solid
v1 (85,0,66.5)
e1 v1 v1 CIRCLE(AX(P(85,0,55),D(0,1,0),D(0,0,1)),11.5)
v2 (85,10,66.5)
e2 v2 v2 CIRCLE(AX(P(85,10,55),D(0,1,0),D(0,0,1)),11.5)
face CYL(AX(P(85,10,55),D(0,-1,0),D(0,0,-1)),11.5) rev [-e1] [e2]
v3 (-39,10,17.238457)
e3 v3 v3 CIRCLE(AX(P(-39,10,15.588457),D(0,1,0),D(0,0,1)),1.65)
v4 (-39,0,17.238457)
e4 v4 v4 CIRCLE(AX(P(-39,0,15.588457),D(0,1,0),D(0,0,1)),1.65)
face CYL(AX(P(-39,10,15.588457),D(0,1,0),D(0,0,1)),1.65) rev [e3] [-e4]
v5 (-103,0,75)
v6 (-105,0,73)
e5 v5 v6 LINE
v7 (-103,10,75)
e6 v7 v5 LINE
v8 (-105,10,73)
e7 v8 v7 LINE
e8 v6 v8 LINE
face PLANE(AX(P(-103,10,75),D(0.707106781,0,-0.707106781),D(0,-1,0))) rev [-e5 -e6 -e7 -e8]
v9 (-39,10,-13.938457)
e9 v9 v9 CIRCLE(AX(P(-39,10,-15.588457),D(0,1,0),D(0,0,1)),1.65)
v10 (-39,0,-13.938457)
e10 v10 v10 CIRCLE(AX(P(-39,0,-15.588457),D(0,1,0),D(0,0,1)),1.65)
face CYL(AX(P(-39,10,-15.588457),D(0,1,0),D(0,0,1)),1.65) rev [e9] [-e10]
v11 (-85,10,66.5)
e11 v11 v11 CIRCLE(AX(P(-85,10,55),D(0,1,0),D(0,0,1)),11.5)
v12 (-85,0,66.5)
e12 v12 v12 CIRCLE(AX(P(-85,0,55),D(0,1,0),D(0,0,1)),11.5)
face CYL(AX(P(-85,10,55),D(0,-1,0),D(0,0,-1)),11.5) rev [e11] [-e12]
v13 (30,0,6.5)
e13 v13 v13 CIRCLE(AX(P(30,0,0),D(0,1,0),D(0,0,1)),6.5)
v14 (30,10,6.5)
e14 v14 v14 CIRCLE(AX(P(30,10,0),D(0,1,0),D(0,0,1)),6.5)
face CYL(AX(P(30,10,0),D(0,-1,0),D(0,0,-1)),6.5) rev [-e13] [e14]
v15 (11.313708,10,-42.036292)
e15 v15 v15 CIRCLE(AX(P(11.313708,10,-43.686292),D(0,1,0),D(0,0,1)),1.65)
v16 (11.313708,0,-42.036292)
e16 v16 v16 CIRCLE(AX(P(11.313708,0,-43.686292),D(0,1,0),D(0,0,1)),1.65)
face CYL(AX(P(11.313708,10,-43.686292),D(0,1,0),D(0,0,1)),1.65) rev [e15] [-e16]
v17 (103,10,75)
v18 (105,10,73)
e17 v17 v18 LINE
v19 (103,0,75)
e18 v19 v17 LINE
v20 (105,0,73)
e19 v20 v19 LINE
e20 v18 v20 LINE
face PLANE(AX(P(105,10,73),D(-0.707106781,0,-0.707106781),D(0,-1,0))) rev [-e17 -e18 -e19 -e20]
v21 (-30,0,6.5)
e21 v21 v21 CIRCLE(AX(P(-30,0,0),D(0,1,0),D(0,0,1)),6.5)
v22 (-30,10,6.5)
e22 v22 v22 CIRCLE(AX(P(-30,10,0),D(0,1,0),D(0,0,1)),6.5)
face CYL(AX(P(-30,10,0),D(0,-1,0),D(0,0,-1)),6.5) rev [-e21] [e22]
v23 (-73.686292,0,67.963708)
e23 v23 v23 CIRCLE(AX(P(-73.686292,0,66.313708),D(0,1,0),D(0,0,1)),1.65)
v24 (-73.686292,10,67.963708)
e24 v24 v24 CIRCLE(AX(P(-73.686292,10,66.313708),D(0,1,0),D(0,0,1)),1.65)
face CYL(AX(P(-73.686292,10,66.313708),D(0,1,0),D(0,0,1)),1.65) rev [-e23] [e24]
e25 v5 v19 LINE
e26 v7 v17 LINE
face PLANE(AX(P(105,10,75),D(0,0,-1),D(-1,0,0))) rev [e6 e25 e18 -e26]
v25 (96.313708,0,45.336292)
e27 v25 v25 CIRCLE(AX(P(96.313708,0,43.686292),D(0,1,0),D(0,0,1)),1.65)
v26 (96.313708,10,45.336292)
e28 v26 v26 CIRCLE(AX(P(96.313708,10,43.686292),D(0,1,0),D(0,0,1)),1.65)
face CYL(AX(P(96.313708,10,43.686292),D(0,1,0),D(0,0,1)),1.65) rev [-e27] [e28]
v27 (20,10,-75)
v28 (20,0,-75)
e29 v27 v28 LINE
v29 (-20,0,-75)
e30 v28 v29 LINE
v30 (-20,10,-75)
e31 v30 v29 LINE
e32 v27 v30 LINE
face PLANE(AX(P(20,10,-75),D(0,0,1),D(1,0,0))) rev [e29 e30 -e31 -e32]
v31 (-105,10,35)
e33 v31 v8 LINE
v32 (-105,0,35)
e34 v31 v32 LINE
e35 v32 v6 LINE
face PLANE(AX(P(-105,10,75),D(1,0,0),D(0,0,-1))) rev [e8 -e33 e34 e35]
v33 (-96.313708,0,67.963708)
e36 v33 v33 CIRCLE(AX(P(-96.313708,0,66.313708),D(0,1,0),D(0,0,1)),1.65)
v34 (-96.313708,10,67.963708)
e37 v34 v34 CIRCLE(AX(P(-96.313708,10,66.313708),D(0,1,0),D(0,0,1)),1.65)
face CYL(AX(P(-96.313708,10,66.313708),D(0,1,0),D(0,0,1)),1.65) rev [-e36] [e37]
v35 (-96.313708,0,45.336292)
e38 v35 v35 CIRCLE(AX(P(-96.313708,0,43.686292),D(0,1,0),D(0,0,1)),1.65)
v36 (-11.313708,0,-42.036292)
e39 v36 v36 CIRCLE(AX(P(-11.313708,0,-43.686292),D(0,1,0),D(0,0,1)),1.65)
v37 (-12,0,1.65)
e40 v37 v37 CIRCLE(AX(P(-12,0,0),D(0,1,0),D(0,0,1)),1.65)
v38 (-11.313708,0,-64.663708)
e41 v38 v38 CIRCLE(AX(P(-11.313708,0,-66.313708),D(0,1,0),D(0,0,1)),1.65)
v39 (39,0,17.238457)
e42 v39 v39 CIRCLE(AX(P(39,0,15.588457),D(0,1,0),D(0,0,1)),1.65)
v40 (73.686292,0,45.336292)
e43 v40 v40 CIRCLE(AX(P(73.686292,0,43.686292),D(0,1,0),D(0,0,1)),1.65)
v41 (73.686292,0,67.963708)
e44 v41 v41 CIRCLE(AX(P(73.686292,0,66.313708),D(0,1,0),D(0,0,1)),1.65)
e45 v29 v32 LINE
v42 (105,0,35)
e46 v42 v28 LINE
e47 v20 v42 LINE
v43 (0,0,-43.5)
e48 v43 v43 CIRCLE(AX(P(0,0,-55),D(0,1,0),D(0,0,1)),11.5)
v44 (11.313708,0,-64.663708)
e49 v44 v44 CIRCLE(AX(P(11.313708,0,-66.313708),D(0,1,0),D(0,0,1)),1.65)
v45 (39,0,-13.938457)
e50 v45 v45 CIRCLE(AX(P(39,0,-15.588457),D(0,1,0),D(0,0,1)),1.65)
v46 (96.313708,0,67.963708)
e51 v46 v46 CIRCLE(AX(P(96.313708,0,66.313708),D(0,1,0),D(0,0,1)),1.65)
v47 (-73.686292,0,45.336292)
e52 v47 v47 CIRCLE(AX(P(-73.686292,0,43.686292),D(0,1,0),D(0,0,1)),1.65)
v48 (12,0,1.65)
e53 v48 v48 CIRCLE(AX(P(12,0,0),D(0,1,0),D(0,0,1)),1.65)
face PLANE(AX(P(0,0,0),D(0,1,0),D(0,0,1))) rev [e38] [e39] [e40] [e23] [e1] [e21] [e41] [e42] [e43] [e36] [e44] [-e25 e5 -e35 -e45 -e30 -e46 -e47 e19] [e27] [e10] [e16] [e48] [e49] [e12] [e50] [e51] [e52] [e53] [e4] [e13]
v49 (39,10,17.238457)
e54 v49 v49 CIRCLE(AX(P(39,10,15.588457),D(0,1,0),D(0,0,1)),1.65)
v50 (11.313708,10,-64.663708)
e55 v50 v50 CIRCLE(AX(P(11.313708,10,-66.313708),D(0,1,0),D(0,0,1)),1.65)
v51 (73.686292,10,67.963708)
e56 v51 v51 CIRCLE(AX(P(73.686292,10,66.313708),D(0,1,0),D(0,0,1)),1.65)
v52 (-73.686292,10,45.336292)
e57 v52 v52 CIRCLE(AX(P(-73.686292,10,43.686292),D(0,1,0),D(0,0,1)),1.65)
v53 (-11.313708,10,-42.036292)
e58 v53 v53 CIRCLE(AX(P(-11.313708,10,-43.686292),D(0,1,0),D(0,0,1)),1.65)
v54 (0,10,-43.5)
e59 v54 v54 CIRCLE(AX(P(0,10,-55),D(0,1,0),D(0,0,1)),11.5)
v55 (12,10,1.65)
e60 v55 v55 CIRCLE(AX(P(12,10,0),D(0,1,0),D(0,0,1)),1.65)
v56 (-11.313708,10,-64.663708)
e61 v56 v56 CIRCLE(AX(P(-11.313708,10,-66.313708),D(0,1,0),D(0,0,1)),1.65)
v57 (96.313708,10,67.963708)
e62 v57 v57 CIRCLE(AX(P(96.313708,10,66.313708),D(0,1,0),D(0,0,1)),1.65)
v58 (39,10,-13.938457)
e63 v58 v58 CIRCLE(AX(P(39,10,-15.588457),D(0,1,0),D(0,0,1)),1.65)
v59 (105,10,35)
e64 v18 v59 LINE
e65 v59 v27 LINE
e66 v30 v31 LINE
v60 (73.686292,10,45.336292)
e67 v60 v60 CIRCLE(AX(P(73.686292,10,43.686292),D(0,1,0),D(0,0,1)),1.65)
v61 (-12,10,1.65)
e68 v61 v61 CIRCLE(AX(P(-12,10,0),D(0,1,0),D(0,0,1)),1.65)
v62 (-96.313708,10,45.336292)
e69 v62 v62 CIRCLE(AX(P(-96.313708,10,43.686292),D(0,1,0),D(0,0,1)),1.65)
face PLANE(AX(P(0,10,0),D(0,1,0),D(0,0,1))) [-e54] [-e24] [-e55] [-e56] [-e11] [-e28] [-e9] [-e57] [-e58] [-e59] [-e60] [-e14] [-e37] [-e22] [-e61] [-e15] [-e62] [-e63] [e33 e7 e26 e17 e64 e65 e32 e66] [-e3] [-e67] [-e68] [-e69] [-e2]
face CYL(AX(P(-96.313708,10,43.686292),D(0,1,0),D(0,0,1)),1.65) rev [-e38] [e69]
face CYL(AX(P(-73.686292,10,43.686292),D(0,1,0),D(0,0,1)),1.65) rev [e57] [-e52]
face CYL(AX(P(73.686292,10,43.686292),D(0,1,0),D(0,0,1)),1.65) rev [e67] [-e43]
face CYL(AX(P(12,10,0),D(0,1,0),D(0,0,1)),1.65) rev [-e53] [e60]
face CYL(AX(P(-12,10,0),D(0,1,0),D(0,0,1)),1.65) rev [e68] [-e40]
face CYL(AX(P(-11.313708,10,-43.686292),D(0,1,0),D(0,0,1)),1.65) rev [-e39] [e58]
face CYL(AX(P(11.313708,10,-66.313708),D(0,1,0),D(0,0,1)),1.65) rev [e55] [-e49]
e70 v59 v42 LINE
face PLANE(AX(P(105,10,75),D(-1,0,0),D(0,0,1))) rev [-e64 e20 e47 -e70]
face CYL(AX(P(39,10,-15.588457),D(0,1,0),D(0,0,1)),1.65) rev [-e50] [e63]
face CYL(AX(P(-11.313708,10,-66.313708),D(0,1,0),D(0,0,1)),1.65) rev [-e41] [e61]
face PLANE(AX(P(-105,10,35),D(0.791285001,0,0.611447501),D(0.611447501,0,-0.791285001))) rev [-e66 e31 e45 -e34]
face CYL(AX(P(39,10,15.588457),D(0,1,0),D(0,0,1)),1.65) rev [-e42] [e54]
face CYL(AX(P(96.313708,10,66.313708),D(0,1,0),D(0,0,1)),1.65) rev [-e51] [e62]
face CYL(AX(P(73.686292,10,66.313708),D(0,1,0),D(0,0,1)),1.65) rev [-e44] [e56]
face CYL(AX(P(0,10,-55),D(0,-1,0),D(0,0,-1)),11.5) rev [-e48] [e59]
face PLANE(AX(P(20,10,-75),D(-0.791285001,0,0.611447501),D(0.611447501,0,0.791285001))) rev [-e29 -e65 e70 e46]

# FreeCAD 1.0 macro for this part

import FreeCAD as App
import Part
import Sketcher

V = App.Vector
Q = App.Units.Quantity


def edges_at(feature, points):
    """Names of the edges that pass closest to the given points."""
    edges = feature.Shape.Edges
    near = lambda p: min(range(len(edges)), key=lambda i: edges[i].distToShape(Part.Vertex(*p))[0])
    return sorted({f"Edge{near(p) + 1}" for p in points})

doc = App.newDocument("Part")
body = doc.addObject("PartDesign::Body", "Body")

# Sketch on XZ plane
sketch1 = body.newObject("Sketcher::SketchObject", "Sketch")
sketch1.AttachmentSupport = (doc.getObject("XZ_Plane"), [""])
sketch1.MapMode = "FlatFace"
sketch1.addGeometry([
    Part.LineSegment(V(-20, -75, 0), V(-105, 35, 0)),  # 0
    Part.LineSegment(V(-105, 35, 0), V(-105, 75, 0)),  # 1
    Part.LineSegment(V(-105, 75, 0), V(105, 75, 0)),  # 2
    Part.LineSegment(V(105, 75, 0), V(105, 35, 0)),  # 3
    Part.LineSegment(V(105, 35, 0), V(20, -75, 0)),  # 4
    Part.LineSegment(V(20, -75, 0), V(-20, -75, 0)),  # 5
    Part.Circle(V(85, 55, 0), V(0, 0, 1), 12),  # 6
    Part.Circle(V(-85, 55, 0), V(0, 0, 1), 12),  # 7
    Part.Circle(V(30, 0, 0), V(0, 0, 1), 6),  # 8
    Part.Circle(V(-30, 0, 0), V(0, 0, 1), 6),  # 9
    Part.Circle(V(0, -55, 0), V(0, 0, 1), 12),  # 10
], False)
sketch1.addConstraint([
    Sketcher.Constraint("Coincident", 0, 2, 1, 1),
    Sketcher.Constraint("Coincident", 1, 2, 2, 1),
    Sketcher.Constraint("Coincident", 2, 2, 3, 1),
    Sketcher.Constraint("Coincident", 3, 2, 4, 1),
    Sketcher.Constraint("Coincident", 4, 2, 5, 1),
    Sketcher.Constraint("Coincident", 5, 2, 0, 1),
    Sketcher.Constraint("Vertical", 1),
    Sketcher.Constraint("Horizontal", 2),
    Sketcher.Constraint("Vertical", 3),
    Sketcher.Constraint("Horizontal", 5),
    Sketcher.Constraint("Equal", 6, 7),
    Sketcher.Constraint("Equal", 8, 9),
    Sketcher.Constraint("Equal", 7, 10),
    Sketcher.Constraint("Symmetric", 8, 3, 9, 3, -1, 1),
    Sketcher.Constraint("Symmetric", 6, 3, 7, 3, -2),
    Sketcher.Constraint("Symmetric", 0, 2, 3, 2, -2),
    Sketcher.Constraint("PointOnObject", 8, 3, -1),
    Sketcher.Constraint("PointOnObject", 10, 3, -2),
    Sketcher.Constraint("Equal", 5, 1),
    Sketcher.Constraint("Equal", 0, 4),
    Sketcher.Constraint("Diameter", 6, Q("23 mm")),
    Sketcher.Constraint("Diameter", 8, Q("13 mm")),
    Sketcher.Constraint("DistanceX", 2, 1, 2, 2, Q("210 mm")),
    Sketcher.Constraint("DistanceX", 5, 2, 5, 1, Q("40 mm")),
    Sketcher.Constraint("DistanceX", -1, 1, 6, 3, Q("85 mm")),
    Sketcher.Constraint("DistanceY", -1, 1, 6, 3, Q("55 mm")),
    Sketcher.Constraint("DistanceX", -1, 1, 8, 3, Q("30 mm")),
    Sketcher.Constraint("DistanceY", 10, 3, -1, 1, Q("55 mm")),
    Sketcher.Constraint("DistanceY", -1, 1, 0, 2, Q("35 mm")),
    Sketcher.Constraint("DistanceY", 4, 2, -1, 1, Q("75 mm")),
])
pad1 = body.newObject("PartDesign::Pad", "Pad")
pad1.Profile = sketch1
pad1.Length = 10
pad1.Reversed = True
doc.recompute()

chamfer = body.newObject("PartDesign::Chamfer", "Chamfer")
chamfer.Base = (pad1, edges_at(pad1, [(105, 5, 75), (-105, 5, 75)]))
chamfer.Size = 2

# Sketch on XZ plane
sketch2 = body.newObject("Sketcher::SketchObject", "Sketch001")
sketch2.AttachmentSupport = (doc.getObject("XZ_Plane"), [""])
sketch2.MapMode = "FlatFace"
sketch2.AttachmentOffset = App.Placement(V(0, 0, -10), App.Rotation())
sketch2.addGeometry([
    Part.Circle(V(-96.3, 43.7, 0), V(0, 0, 1), 1.6),  # 0
    Part.Circle(V(-73.7, 43.7, 0), V(0, 0, 1), 1.6),  # 1
    Part.Circle(V(-73.7, 66.3, 0), V(0, 0, 1), 1.6),  # 2
    Part.Circle(V(-96.3, 66.3, 0), V(0, 0, 1), 1.6),  # 3
    Part.Circle(V(-11.3, -43.7, 0), V(0, 0, 1), 1.6),  # 4
    Part.Circle(V(-11.3, -66.3, 0), V(0, 0, 1), 1.6),  # 5
], False)
sketch2.addConstraint([
    Sketcher.Constraint("Equal", 0, 1),
    Sketcher.Constraint("Equal", 1, 2),
    Sketcher.Constraint("Equal", 2, 3),
    Sketcher.Constraint("Equal", 3, 4),
    Sketcher.Constraint("Equal", 4, 5),
    Sketcher.Constraint("Horizontal", 0, 3, 1, 3),
    Sketcher.Constraint("Horizontal", 2, 3, 3, 3),
    Sketcher.Constraint("Vertical", 1, 3, 2, 3),
    Sketcher.Constraint("Vertical", 0, 3, 3, 3),
    Sketcher.Constraint("Vertical", 4, 3, 5, 3),
    Sketcher.Constraint("Diameter", 0, Q("3.3 mm")),
    Sketcher.Constraint("DistanceX", 0, 3, 4, 3, Q("85 mm")),
    Sketcher.Constraint("DistanceY", 4, 3, 2, 3, Q("110 mm")),
    Sketcher.Constraint("DistanceY", 5, 3, 1, 3, Q("110 mm")),
    Sketcher.Constraint("DistanceX", 0, 3, -1, 1, Q("96.313708 mm")),
    Sketcher.Constraint("DistanceY", -1, 1, 0, 3, Q("43.686292 mm")),
    Sketcher.Constraint("DistanceX", 1, 3, -1, 1, Q("73.686292 mm")),
    Sketcher.Constraint("DistanceY", -1, 1, 2, 3, Q("66.313708 mm")),
])
doc.recompute()
hole = body.newObject("PartDesign::Hole", "Hole")
hole.Profile = sketch2
hole.ThreadType = "None"
hole.Diameter = 3.3
hole.DepthType = "ThroughAll"
hole.Reversed = True

# Sketch on XZ plane
sketch3 = body.newObject("Sketcher::SketchObject", "Sketch002")
sketch3.AttachmentSupport = (doc.getObject("XZ_Plane"), [""])
sketch3.MapMode = "FlatFace"
sketch3.AttachmentOffset = App.Placement(V(0, 0, -10), App.Rotation())
sketch3.addGeometry(Part.Circle(V(-12, 0, 0), V(0, 0, 1), 1.6), False)
sketch3.addConstraint([
    Sketcher.Constraint("PointOnObject", 0, 3, -1),
    Sketcher.Constraint("Diameter", 0, Q("3.3 mm")),
    Sketcher.Constraint("DistanceX", 0, 3, -1, 1, Q("12 mm")),
])
doc.recompute()
hole2 = body.newObject("PartDesign::Hole", "Hole001")
hole2.Profile = sketch3
hole2.ThreadType = "None"
hole2.Diameter = 3.3
hole2.DepthType = "ThroughAll"
hole2.Reversed = True
doc.recompute()

datumline = body.newObject("PartDesign::Line", "DatumLine")
datumline.Placement = App.Placement(V(-30, 0, 0), App.Rotation(V(0, 0, 1), V(0, 1, 0)))
polarpattern = body.newObject("PartDesign::PolarPattern", "PolarPattern")
polarpattern.Originals = [hole2]
polarpattern.Axis = (datumline, [""])
polarpattern.Angle = 360
polarpattern.Occurrences = 3
body.Tip = polarpattern
doc.recompute()

mirrored = body.newObject("PartDesign::Mirrored", "Mirrored")
mirrored.Originals = [hole, hole2]
mirrored.MirrorPlane = (doc.getObject("YZ_Plane"), [""])
body.Tip = mirrored

# Sketch on XZ plane
sketch4 = body.newObject("Sketcher::SketchObject", "Sketch003")
sketch4.AttachmentSupport = (doc.getObject("XZ_Plane"), [""])
sketch4.MapMode = "FlatFace"
sketch4.AttachmentOffset = App.Placement(V(0, 0, -10), App.Rotation())
sketch4.addGeometry(Part.Circle(V(39, -15.6, 0), V(0, 0, 1), 1.6), False)
sketch4.addConstraint([
    Sketcher.Constraint("Diameter", 0, Q("3.3 mm")),
    Sketcher.Constraint("DistanceX", -1, 1, 0, 3, Q("39 mm")),
    Sketcher.Constraint("DistanceY", 0, 3, -1, 1, Q("15.588457 mm")),
])
doc.recompute()
hole3 = body.newObject("PartDesign::Hole", "Hole002")
hole3.Profile = sketch4
hole3.ThreadType = "None"
hole3.Diameter = 3.3
hole3.DepthType = "ThroughAll"
hole3.Reversed = True

# Sketch on XZ plane
sketch5 = body.newObject("Sketcher::SketchObject", "Sketch004")
sketch5.AttachmentSupport = (doc.getObject("XZ_Plane"), [""])
sketch5.MapMode = "FlatFace"
sketch5.AttachmentOffset = App.Placement(V(0, 0, -10), App.Rotation())
sketch5.addGeometry(Part.Circle(V(39, 15.6, 0), V(0, 0, 1), 1.6), False)
sketch5.addConstraint([
    Sketcher.Constraint("Diameter", 0, Q("3.3 mm")),
    Sketcher.Constraint("DistanceX", -1, 1, 0, 3, Q("39 mm")),
    Sketcher.Constraint("DistanceY", -1, 1, 0, 3, Q("15.588457 mm")),
])
doc.recompute()
hole4 = body.newObject("PartDesign::Hole", "Hole003")
hole4.Profile = sketch5
hole4.ThreadType = "None"
hole4.Diameter = 3.3
hole4.DepthType = "ThroughAll"
hole4.Reversed = True

doc.recompute()
